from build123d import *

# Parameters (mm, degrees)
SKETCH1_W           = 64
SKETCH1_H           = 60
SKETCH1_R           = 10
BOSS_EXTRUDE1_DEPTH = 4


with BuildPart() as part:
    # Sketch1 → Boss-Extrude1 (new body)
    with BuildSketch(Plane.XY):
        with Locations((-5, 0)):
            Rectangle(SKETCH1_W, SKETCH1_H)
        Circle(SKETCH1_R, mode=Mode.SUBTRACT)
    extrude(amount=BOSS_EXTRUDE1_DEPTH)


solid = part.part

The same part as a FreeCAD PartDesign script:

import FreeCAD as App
import Part
import Sketcher
from FreeCAD import Vector
Q = App.Units.Quantity

doc = App.newDocument("Part")
body = doc.addObject("PartDesign::Body", "Body")

# Sketch on XY plane
sketch1 = doc.addObject("Sketcher::SketchObject", "Sketch")
body.addObject(sketch1)
sketch1.AttachmentSupport = (doc.XY_Plane, [""])
sketch1.MapMode = "FlatFace"
sketch1.addGeometry(Part.LineSegment(Vector(-37, 30, 0), Vector(-37, -30, 0)), False)
sketch1.addGeometry(Part.LineSegment(Vector(-37, -30, 0), Vector(27, -30, 0)), False)
sketch1.addGeometry(Part.LineSegment(Vector(27, -30, 0), Vector(27, 30, 0)), False)
sketch1.addGeometry(Part.LineSegment(Vector(27, 30, 0), Vector(-37, 30, 0)), False)
sketch1.addGeometry(Part.Circle(Vector(0, 0, 0), Vector(0, 0, 1), 10), False)
sketch1.addConstraint(Sketcher.Constraint("Coincident", 0, 2, 1, 1))
sketch1.addConstraint(Sketcher.Constraint("Coincident", 1, 2, 2, 1))
sketch1.addConstraint(Sketcher.Constraint("Coincident", 2, 2, 3, 1))
sketch1.addConstraint(Sketcher.Constraint("Coincident", 3, 2, 0, 1))
sketch1.addConstraint(Sketcher.Constraint("Vertical", 0))
sketch1.addConstraint(Sketcher.Constraint("Horizontal", 1))
sketch1.addConstraint(Sketcher.Constraint("Vertical", 2))
sketch1.addConstraint(Sketcher.Constraint("Horizontal", 3))
sketch1.addConstraint(Sketcher.Constraint("Coincident", 4, 3, -1, 1))
sketch1.addConstraint(Sketcher.Constraint("Diameter", 4, Q("20 mm")))
sketch1.addConstraint(Sketcher.Constraint("DistanceX", 1, 1, 1, 2, Q("64 mm")))
sketch1.addConstraint(Sketcher.Constraint("DistanceY", 0, 2, 0, 1, Q("60 mm")))
sketch1.addConstraint(Sketcher.Constraint("DistanceX", 0, 2, -1, 1, Q("37 mm")))
sketch1.addConstraint(Sketcher.Constraint("DistanceY", 0, 2, -1, 1, Q("30 mm")))
pad1 = doc.addObject("PartDesign::Pad", "Pad")
body.addObject(pad1)
pad1.Profile = sketch1
pad1.Length = 4

doc.recompute()
